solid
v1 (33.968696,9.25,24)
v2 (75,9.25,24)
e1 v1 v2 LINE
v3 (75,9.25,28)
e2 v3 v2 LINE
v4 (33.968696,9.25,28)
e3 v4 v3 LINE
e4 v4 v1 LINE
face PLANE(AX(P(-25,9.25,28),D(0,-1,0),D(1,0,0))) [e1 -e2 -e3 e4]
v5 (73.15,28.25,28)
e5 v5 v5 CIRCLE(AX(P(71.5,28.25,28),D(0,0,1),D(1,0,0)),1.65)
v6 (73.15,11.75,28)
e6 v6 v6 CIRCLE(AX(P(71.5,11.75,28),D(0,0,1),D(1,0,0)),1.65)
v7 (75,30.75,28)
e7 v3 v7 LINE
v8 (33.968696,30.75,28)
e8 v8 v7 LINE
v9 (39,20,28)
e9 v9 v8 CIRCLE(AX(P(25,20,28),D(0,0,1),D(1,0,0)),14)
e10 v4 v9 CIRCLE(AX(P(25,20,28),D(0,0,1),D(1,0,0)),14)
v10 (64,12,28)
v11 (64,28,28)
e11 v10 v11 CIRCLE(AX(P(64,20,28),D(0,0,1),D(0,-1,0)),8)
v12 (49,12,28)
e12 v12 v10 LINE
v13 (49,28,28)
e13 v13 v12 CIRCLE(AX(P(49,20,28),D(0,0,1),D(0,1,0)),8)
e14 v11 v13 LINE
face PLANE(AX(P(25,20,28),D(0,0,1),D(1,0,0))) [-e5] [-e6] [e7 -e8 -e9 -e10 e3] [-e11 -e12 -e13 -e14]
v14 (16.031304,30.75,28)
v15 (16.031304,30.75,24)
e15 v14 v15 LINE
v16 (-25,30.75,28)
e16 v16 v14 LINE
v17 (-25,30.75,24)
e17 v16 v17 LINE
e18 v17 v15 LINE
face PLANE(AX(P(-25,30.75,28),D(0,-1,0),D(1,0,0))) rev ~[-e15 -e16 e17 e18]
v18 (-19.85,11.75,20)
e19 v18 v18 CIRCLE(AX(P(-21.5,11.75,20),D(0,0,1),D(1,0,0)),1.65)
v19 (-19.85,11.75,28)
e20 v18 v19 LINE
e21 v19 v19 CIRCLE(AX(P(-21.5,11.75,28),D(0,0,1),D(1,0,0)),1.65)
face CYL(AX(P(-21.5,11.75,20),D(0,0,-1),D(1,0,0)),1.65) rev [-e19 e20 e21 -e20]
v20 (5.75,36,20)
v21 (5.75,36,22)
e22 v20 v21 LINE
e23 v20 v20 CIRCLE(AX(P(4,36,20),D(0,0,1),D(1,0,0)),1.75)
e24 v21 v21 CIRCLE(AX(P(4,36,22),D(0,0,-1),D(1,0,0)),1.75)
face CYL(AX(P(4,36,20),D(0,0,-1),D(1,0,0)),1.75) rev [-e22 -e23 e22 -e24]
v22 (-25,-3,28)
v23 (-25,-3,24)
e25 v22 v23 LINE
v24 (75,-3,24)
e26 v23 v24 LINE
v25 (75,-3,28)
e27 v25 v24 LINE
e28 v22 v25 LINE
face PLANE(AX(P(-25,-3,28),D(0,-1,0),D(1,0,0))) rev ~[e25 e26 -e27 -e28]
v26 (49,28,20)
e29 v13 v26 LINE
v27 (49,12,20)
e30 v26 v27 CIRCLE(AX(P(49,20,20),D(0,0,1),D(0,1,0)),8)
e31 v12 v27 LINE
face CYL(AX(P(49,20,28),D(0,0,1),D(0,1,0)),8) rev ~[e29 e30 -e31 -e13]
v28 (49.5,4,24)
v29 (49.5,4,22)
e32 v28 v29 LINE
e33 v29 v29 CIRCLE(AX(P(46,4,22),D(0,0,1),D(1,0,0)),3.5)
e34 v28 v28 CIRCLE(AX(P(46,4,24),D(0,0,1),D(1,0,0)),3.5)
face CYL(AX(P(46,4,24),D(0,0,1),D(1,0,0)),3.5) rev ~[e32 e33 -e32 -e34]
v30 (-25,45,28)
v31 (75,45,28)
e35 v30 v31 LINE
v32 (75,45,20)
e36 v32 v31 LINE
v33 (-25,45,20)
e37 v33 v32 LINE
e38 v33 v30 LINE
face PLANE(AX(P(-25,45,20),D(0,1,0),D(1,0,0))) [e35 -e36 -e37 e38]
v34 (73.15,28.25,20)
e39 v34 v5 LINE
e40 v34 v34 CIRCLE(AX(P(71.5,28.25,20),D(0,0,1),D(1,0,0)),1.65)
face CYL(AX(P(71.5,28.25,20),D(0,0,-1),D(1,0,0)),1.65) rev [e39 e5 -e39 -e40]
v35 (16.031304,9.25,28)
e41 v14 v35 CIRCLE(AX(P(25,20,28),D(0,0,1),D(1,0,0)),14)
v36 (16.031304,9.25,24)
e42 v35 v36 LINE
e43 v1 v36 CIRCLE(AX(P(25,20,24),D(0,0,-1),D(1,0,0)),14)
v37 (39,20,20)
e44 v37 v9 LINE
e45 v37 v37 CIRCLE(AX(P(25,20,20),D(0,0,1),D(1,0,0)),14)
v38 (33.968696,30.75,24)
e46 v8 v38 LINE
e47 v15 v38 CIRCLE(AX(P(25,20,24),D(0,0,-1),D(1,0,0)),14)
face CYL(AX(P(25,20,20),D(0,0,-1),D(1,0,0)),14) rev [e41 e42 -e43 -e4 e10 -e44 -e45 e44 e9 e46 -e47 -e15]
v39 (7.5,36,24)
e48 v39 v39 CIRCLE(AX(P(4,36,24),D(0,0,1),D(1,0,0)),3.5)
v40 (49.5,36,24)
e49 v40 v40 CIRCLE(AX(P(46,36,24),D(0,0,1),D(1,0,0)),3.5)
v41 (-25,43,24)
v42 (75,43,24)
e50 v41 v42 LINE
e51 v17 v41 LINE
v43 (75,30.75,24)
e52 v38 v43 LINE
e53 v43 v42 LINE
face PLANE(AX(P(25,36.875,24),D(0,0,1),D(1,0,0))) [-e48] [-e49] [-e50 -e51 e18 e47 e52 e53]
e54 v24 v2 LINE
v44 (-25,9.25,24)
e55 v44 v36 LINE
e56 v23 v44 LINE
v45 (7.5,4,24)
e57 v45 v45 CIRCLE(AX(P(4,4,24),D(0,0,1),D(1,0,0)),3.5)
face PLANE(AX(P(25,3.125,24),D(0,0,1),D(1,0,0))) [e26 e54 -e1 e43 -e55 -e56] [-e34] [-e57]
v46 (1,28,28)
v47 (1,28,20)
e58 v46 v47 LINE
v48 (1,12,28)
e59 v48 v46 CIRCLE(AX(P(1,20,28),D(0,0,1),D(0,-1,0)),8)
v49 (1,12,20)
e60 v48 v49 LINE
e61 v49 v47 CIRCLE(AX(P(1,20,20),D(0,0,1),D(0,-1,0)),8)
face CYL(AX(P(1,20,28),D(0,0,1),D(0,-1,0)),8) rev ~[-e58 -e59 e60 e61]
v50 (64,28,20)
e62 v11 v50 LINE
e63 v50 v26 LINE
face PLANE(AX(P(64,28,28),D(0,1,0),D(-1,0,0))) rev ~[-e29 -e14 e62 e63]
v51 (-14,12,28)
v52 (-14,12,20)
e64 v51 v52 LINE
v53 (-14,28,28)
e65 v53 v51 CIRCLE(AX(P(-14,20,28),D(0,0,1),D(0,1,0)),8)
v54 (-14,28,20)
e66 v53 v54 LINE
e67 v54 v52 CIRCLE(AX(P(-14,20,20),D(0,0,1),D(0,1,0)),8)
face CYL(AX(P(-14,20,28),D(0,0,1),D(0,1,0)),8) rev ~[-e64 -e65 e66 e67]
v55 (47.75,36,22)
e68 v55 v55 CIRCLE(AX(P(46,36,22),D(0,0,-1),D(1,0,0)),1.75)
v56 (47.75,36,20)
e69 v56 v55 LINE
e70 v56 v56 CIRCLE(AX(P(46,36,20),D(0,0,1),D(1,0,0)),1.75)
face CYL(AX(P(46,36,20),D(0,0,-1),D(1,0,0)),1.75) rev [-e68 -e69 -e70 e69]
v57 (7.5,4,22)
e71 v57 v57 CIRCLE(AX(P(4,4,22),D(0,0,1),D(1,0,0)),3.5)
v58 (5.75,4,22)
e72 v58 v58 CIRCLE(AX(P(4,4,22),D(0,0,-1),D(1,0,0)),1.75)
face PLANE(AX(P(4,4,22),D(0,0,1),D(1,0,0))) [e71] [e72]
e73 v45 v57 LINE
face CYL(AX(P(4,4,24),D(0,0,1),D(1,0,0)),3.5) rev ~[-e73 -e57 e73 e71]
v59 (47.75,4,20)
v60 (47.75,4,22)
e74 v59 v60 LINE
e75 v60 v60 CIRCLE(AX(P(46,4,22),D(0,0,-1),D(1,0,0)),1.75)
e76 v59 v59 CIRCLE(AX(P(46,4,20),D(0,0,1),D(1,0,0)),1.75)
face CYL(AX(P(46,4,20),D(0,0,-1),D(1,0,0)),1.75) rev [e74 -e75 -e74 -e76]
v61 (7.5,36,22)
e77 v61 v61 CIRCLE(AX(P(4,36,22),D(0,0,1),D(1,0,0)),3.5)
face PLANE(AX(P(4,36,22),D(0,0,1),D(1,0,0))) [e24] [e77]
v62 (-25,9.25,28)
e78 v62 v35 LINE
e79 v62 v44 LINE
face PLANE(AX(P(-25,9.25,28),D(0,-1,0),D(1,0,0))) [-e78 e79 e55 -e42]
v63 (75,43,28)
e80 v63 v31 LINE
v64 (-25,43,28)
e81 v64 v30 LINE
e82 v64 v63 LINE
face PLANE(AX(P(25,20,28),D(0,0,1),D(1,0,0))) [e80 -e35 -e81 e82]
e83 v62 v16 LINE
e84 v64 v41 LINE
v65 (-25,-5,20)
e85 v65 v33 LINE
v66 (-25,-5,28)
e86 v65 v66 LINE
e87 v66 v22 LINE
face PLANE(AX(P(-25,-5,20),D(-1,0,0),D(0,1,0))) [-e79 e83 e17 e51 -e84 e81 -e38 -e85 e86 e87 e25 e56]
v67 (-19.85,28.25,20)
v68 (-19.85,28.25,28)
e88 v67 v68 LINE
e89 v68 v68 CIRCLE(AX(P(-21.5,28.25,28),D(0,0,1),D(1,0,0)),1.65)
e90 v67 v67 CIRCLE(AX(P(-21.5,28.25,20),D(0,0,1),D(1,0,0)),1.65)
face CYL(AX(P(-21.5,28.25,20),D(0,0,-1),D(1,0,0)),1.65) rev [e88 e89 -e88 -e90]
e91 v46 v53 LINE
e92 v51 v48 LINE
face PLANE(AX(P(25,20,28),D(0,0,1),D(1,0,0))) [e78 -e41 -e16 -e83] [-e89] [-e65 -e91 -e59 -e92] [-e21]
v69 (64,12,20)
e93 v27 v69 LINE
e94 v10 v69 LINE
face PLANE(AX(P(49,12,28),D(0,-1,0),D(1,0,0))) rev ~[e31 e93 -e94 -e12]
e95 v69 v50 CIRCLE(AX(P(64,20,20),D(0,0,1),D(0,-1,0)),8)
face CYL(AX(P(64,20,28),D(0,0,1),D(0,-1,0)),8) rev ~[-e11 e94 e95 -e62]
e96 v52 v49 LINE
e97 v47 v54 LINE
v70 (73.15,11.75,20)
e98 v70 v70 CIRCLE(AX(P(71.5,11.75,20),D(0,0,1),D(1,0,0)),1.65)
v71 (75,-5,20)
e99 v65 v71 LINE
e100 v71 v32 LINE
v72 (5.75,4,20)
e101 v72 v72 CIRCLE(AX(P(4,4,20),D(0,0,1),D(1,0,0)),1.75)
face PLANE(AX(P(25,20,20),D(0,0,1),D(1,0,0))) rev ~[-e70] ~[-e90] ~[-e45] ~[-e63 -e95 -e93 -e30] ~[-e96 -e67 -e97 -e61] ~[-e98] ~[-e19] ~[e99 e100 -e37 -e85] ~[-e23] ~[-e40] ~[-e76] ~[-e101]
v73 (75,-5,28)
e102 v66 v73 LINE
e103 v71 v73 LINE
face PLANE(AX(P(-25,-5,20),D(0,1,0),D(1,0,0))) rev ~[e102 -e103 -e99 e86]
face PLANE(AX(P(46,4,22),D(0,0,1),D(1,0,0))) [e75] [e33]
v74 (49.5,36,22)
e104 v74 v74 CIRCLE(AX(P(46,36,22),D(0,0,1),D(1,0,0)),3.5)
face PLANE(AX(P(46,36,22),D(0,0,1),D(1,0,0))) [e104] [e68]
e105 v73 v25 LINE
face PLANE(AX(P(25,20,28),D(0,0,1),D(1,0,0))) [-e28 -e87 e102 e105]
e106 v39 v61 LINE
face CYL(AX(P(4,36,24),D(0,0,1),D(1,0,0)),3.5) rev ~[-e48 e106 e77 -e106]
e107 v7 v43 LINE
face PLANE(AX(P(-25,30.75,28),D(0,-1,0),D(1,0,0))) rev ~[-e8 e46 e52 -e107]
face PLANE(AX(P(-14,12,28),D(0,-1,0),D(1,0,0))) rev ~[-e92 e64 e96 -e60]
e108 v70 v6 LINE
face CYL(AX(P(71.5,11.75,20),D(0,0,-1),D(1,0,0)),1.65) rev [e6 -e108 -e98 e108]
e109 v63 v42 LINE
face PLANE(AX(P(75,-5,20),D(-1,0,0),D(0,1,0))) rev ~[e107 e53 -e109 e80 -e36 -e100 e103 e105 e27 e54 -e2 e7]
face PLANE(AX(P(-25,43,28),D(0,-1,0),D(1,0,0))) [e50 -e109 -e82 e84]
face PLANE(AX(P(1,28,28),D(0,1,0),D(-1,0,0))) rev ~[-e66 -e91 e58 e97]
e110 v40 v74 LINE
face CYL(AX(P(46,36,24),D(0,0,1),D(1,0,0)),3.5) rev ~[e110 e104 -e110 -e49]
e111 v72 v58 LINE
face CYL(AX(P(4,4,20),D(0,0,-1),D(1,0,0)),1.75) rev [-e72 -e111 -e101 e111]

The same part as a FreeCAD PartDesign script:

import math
import FreeCAD as App
import Part
import Sketcher

V = App.Vector


def add_polygon(sketch, points):
    """Adds a closed chain of lines whose ends are joined by coincident constraints."""
    first, n = sketch.GeometryCount, len(points)
    for a, b in zip(points, points[1:] + points[:1]):
        sketch.addGeometry(Part.LineSegment(App.Vector(*a, 0), App.Vector(*b, 0)), False)
    for i in range(n):
        sketch.addConstraint(Sketcher.Constraint("Coincident", first + i, 2, first + (i + 1) % n, 1))

doc = App.newDocument("Part")
body = doc.addObject("PartDesign::Body", "Body")

# Sketch on XY plane
sketch1 = body.newObject("Sketcher::SketchObject", "Sketch")
sketch1.AttachmentSupport = (doc.getObject("XY_Plane"), [""])
sketch1.MapMode = "FlatFace"
add_polygon(sketch1, [(0, 50), (0, 0), (100, 0), (100, 50)])  # lines 0-3
sketch1.addGeometry(Part.Circle(V(29, 9, 0), V(0, 0, 1), 1.75), False)  # 4
sketch1.addGeometry(Part.Circle(V(3.5, 16.75, 0), V(0, 0, 1), 1.65), False)  # 5
sketch1.addGeometry(Part.Circle(V(71, 9, 0), V(0, 0, 1), 1.75), False)  # 6
sketch1.addGeometry(Part.Circle(V(96.5, 16.75, 0), V(0, 0, 1), 1.65), False)  # 7
sketch1.addGeometry(Part.Circle(V(3.5, 33.25, 0), V(0, 0, 1), 1.65), False)  # 8
sketch1.addGeometry(Part.Circle(V(29, 41, 0), V(0, 0, 1), 1.75), False)  # 9
sketch1.addGeometry(Part.Circle(V(50, 25, 0), V(0, 0, 1), 14), False)  # 10
sketch1.addGeometry(Part.Circle(V(96.5, 33.25, 0), V(0, 0, 1), 1.65), False)  # 11
sketch1.addGeometry(Part.Circle(V(71, 41, 0), V(0, 0, 1), 1.75), False)  # 12
sketch1.addConstraint([
    Sketcher.Constraint("Vertical", 0),
    Sketcher.Constraint("Horizontal", 1),
    Sketcher.Constraint("Vertical", 2),
    Sketcher.Constraint("Horizontal", 3),
    Sketcher.Constraint("Coincident", 0, 2, -1, 1),
    Sketcher.Constraint("Equal", 4, 6),
    Sketcher.Constraint("Equal", 5, 7),
    Sketcher.Constraint("Equal", 7, 8),
    Sketcher.Constraint("Equal", 6, 9),
    Sketcher.Constraint("Equal", 8, 11),
    Sketcher.Constraint("Equal", 9, 12),
    Sketcher.Constraint("Horizontal", 4, 3, 6, 3),
    Sketcher.Constraint("Horizontal", 5, 3, 7, 3),
    Sketcher.Constraint("Horizontal", 8, 3, 11, 3),
    Sketcher.Constraint("Horizontal", 9, 3, 12, 3),
    Sketcher.Constraint("Vertical", 5, 3, 8, 3),
    Sketcher.Constraint("Vertical", 4, 3, 9, 3),
    Sketcher.Constraint("Vertical", 7, 3, 11, 3),
    Sketcher.Constraint("Vertical", 6, 3, 12, 3),
    Sketcher.Constraint("Diameter", 10, 28.0),
    Sketcher.Constraint("Diameter", 4, 3.5),
    Sketcher.Constraint("Diameter", 5, 3.3),
    Sketcher.Constraint("DistanceX", 1, 1, 1, 2, 100.0),
    Sketcher.Constraint("DistanceY", 0, 2, 0, 1, 50.0),
    Sketcher.Constraint("DistanceX", -1, 1, 4, 3, 29.0),
    Sketcher.Constraint("DistanceY", -1, 1, 4, 3, 9.0),
    Sketcher.Constraint("DistanceX", -1, 1, 6, 3, 71.0),
    Sketcher.Constraint("DistanceY", -1, 1, 9, 3, 41.0),
    Sketcher.Constraint("DistanceX", -1, 1, 10, 3, 50.0),
    Sketcher.Constraint("DistanceY", -1, 1, 10, 3, 25.0),
    Sketcher.Constraint("DistanceX", 5, 3, 7, 3, 93.0),
    Sketcher.Constraint("DistanceX", -1, 1, 5, 3, 3.5),
    Sketcher.Constraint("DistanceY", 5, 3, 8, 3, 16.5),
    Sketcher.Constraint("DistanceY", -1, 1, 5, 3, 16.75),
])
pad1 = body.newObject("PartDesign::Pad", "Pad")
pad1.Profile = sketch1
pad1.Length = 8

# Sketch on XY plane
sketch2 = body.newObject("Sketcher::SketchObject", "Sketch001")
sketch2.AttachmentSupport = (doc.getObject("XY_Plane"), [""])
sketch2.MapMode = "FlatFace"
sketch2.AttachmentOffset = App.Placement(V(0, 0, 8), App.Rotation())
add_polygon(sketch2, [(0, 48), (0, 35.75), (100, 35.75), (100, 48)])  # lines 0-3
add_polygon(sketch2, [(0, 14.25), (0, 2), (100, 2), (100, 14.25)])  # lines 4-7
sketch2.addConstraint([
    Sketcher.Constraint("Vertical", 0),
    Sketcher.Constraint("Horizontal", 1),
    Sketcher.Constraint("Vertical", 2),
    Sketcher.Constraint("Horizontal", 3),
    Sketcher.Constraint("Vertical", 4),
    Sketcher.Constraint("Horizontal", 5),
    Sketcher.Constraint("Vertical", 6),
    Sketcher.Constraint("Horizontal", 7),
    Sketcher.Constraint("PointOnObject", 0, 2, -2),
    Sketcher.Constraint("PointOnObject", 4, 2, -2),
    Sketcher.Constraint("Vertical", 2, 2, 5, 2),
    Sketcher.Constraint("Equal", 2, 4),
    Sketcher.Constraint("DistanceX", 1, 1, 1, 2, 100.0),
    Sketcher.Constraint("DistanceY", -1, 1, 2, 2, 48.0),
    Sketcher.Constraint("DistanceY", -1, 1, 4, 2, 2.0),
    Sketcher.Constraint("DistanceY", 0, 2, 0, 1, 12.25),
])
pocket1 = body.newObject("PartDesign::Pocket", "Pocket")
pocket1.Profile = sketch2
pocket1.Length = 4

# Sketch on XY plane
sketch3 = body.newObject("Sketcher::SketchObject", "Sketch002")
sketch3.AttachmentSupport = (doc.getObject("XY_Plane"), [""])
sketch3.MapMode = "FlatFace"
sketch3.AttachmentOffset = App.Placement(V(0, 0, 8), App.Rotation())
sketch3.addGeometry([
    Part.ArcOfCircle(Part.Circle(V(11, 25, 0), V(0, 0, 1), 8), math.radians(90), math.radians(270)),  # 0
    Part.LineSegment(V(11, 17, 0), V(26, 17, 0)),  # 1
    Part.ArcOfCircle(Part.Circle(V(26, 25, 0), V(0, 0, 1), 8), math.radians(-90), math.radians(90)),  # 2
    Part.LineSegment(V(26, 33, 0), V(11, 33, 0)),  # 3
    Part.ArcOfCircle(Part.Circle(V(74, 25, 0), V(0, 0, 1), 8), math.radians(90), math.radians(270)),  # 4
    Part.LineSegment(V(74, 17, 0), V(89, 17, 0)),  # 5
    Part.ArcOfCircle(Part.Circle(V(89, 25, 0), V(0, 0, 1), 8), math.radians(-90), math.radians(90)),  # 6
    Part.LineSegment(V(89, 33, 0), V(74, 33, 0)),  # 7
], False)
sketch3.addConstraint([
    Sketcher.Constraint("Tangent", 0, 2, 1, 1),
    Sketcher.Constraint("Tangent", 1, 2, 2, 1),
    Sketcher.Constraint("Tangent", 2, 2, 3, 1),
    Sketcher.Constraint("Tangent", 3, 2, 0, 1),
    Sketcher.Constraint("Tangent", 4, 2, 5, 1),
    Sketcher.Constraint("Tangent", 5, 2, 6, 1),
    Sketcher.Constraint("Tangent", 6, 2, 7, 1),
    Sketcher.Constraint("Tangent", 7, 2, 4, 1),
    Sketcher.Constraint("Horizontal", 1),
    Sketcher.Constraint("Horizontal", 3),
    Sketcher.Constraint("Horizontal", 5),
    Sketcher.Constraint("Horizontal", 7),
    Sketcher.Constraint("Equal", 2, 4),
    Sketcher.Constraint("Horizontal", 2, 3, 4, 3),
    Sketcher.Constraint("Equal", 3, 5),
    Sketcher.Constraint("Radius", 0, 8.0),
    Sketcher.Constraint("DistanceX", 1, 1, 1, 2, 15.0),
    Sketcher.Constraint("DistanceX", -1, 1, 0, 3, 11.0),
    Sketcher.Constraint("DistanceY", -1, 1, 0, 3, 25.0),
    Sketcher.Constraint("DistanceX", -1, 1, 4, 3, 74.0),
])
pocket2 = body.newObject("PartDesign::Pocket", "Pocket001")
pocket2.Profile = sketch3
pocket2.Type = "ThroughAll"

# Sketch on XY plane
sketch4 = body.newObject("Sketcher::SketchObject", "Sketch003")
sketch4.AttachmentSupport = (doc.getObject("XY_Plane"), [""])
sketch4.MapMode = "FlatFace"
sketch4.AttachmentOffset = App.Placement(V(0, 0, 4), App.Rotation())
sketch4.addGeometry([
    Part.Circle(V(29, 41, 0), V(0, 0, 1), 3.5),
    Part.Circle(V(71, 41, 0), V(0, 0, 1), 3.5),
    Part.Circle(V(29, 9, 0), V(0, 0, 1), 3.5),
    Part.Circle(V(71, 9, 0), V(0, 0, 1), 3.5),
], False)
sketch4.addConstraint([
    Sketcher.Constraint("Equal", 0, 1),
    Sketcher.Constraint("Equal", 1, 2),
    Sketcher.Constraint("Equal", 2, 3),
    Sketcher.Constraint("Horizontal", 0, 3, 1, 3),
    Sketcher.Constraint("Horizontal", 2, 3, 3, 3),
    Sketcher.Constraint("Vertical", 0, 3, 2, 3),
    Sketcher.Constraint("Vertical", 1, 3, 3, 3),
    Sketcher.Constraint("Diameter", 0, 7.0),
    Sketcher.Constraint("DistanceX", -1, 1, 0, 3, 29.0),
    Sketcher.Constraint("DistanceY", -1, 1, 0, 3, 41.0),
    Sketcher.Constraint("DistanceX", -1, 1, 1, 3, 71.0),
    Sketcher.Constraint("DistanceY", -1, 1, 2, 3, 9.0),
])
pocket3 = body.newObject("PartDesign::Pocket", "Pocket002")
pocket3.Profile = sketch4
pocket3.Length = 2
body2 = doc.addObject("PartDesign::Body", "Body001")
doc.recompute()

body.Placement = App.Placement(V(-25, -5, 20), App.Rotation(V(0, 0, 1), 0))
boolean = body2.newObject("PartDesign::Boolean", "Boolean")
boolean.Type = "Fuse"
boolean.addObjects([body])

doc.recompute()
